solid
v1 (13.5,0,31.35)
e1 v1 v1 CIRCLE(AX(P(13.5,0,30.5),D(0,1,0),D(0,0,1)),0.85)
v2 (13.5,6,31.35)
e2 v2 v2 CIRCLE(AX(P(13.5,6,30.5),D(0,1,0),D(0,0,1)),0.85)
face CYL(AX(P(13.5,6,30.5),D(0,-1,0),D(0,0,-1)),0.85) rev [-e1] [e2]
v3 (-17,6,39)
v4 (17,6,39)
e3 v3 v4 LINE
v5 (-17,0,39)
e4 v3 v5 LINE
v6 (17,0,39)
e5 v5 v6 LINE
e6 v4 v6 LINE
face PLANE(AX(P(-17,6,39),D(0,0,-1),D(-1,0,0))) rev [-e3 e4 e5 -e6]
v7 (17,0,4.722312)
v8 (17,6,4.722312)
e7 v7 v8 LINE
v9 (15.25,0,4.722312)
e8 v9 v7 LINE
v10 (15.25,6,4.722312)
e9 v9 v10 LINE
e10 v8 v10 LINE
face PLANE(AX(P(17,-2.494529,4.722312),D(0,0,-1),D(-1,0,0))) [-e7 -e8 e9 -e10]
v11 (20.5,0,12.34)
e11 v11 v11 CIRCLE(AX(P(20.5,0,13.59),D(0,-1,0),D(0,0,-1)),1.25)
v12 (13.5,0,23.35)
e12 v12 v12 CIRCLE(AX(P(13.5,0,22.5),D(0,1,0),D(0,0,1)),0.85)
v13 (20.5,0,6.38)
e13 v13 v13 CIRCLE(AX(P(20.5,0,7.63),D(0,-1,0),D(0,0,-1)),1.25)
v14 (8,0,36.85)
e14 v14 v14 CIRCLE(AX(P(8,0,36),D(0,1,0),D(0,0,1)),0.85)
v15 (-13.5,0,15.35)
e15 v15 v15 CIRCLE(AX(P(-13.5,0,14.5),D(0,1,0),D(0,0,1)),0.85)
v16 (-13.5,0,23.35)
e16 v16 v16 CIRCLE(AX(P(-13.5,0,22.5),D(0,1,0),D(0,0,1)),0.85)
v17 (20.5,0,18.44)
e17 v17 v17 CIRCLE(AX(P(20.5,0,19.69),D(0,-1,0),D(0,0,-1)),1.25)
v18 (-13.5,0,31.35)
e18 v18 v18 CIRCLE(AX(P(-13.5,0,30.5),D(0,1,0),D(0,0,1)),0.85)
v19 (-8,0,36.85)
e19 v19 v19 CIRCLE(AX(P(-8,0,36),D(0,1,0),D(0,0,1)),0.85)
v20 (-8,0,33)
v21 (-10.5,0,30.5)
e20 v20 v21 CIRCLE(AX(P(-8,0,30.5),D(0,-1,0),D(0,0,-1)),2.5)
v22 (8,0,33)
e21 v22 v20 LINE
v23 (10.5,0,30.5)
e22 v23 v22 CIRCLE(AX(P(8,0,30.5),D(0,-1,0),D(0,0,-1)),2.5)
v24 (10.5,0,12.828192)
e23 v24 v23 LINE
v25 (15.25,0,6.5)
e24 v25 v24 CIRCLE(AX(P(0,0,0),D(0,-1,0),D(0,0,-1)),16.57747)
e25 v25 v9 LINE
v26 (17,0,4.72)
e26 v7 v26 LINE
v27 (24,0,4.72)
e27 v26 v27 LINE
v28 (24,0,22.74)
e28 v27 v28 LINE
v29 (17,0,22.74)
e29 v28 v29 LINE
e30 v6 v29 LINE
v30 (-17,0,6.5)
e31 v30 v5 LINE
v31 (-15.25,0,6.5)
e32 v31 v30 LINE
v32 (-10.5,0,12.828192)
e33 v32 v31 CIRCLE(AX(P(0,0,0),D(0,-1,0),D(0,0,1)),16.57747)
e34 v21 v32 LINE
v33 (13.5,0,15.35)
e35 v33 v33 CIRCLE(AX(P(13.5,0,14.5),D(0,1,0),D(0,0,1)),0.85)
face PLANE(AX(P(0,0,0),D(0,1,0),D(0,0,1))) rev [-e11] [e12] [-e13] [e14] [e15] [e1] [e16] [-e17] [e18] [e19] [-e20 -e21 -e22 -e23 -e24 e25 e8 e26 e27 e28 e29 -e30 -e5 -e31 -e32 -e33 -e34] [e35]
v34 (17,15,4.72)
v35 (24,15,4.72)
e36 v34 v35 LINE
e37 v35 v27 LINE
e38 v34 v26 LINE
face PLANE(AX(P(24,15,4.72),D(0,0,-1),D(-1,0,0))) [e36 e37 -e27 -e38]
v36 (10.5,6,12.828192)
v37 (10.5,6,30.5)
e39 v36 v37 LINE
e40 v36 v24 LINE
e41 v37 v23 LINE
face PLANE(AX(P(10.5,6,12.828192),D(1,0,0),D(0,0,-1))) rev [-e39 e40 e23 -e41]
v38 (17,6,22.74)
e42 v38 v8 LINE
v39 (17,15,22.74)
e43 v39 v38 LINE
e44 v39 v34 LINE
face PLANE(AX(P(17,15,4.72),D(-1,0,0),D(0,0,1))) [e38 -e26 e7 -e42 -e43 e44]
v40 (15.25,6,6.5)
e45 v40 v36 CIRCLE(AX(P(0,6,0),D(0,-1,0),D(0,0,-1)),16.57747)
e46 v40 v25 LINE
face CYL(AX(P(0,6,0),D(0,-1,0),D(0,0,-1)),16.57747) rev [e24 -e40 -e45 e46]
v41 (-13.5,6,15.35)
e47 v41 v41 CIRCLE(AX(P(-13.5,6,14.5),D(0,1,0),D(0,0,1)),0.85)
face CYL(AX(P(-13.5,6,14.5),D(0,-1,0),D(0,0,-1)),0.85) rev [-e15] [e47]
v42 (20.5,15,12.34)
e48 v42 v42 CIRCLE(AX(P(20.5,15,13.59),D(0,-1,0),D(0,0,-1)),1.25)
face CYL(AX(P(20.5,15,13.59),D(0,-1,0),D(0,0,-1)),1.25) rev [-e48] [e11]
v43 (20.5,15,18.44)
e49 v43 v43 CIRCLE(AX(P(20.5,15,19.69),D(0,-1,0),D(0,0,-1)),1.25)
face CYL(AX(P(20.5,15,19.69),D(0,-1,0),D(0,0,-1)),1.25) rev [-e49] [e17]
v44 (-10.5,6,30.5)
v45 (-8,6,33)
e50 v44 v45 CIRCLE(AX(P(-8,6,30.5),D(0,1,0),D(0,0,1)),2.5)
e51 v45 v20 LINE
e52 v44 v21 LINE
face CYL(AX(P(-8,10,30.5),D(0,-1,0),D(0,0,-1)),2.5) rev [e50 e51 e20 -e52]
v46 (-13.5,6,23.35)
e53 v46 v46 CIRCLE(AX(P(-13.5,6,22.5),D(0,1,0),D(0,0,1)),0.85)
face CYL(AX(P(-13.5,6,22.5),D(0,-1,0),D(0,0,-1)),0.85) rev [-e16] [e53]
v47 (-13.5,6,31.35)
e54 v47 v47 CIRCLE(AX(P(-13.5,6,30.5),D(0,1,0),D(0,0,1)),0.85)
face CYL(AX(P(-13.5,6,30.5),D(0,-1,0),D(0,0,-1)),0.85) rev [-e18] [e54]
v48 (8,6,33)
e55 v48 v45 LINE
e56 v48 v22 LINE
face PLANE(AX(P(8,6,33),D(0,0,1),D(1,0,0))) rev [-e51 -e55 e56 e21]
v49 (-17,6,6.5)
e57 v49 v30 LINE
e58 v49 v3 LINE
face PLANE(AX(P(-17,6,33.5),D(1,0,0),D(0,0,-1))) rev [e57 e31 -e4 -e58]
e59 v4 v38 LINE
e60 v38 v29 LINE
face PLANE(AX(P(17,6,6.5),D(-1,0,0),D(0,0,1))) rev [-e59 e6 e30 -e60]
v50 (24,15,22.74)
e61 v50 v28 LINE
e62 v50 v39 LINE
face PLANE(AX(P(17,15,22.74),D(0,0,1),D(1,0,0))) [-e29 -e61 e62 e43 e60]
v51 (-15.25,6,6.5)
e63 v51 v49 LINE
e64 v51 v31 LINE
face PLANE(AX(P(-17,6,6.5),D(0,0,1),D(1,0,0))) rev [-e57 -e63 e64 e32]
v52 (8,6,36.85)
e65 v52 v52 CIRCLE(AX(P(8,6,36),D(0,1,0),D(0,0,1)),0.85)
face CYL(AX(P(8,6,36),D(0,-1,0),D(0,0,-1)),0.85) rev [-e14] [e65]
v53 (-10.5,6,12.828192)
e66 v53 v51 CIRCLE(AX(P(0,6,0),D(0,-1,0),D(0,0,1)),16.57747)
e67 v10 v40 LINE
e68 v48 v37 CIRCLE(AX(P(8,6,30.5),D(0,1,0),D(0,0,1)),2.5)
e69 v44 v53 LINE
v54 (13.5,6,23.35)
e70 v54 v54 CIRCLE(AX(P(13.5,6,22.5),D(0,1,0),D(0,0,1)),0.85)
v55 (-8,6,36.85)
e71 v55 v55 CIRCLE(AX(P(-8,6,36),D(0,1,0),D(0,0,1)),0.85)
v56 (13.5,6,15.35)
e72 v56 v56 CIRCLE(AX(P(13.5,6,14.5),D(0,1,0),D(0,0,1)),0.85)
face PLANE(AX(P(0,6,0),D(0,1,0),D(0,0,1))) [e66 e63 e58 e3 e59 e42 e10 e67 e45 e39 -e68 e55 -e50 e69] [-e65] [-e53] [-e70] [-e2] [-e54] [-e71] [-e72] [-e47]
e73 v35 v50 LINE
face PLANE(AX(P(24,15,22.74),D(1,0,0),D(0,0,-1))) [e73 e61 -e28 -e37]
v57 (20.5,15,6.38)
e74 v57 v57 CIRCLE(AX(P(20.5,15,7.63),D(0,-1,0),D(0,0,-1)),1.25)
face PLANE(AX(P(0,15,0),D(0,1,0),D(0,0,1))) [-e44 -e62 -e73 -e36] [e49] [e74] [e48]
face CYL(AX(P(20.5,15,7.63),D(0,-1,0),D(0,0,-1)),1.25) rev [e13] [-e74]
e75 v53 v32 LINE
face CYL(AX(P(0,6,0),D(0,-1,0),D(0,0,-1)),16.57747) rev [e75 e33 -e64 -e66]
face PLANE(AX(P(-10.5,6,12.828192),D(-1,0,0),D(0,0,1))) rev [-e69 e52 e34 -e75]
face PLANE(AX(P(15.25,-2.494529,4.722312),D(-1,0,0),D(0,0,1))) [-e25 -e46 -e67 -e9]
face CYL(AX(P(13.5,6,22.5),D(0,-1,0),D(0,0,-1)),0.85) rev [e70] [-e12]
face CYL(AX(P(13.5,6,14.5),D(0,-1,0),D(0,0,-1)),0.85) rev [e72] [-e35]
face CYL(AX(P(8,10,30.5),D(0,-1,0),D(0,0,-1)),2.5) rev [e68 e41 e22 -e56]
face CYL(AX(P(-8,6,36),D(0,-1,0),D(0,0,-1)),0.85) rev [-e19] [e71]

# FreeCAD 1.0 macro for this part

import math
import FreeCAD as App
import Part
import Sketcher
from FreeCAD import Vector
Q = App.Units.Quantity

doc = App.newDocument("Part")
body = doc.addObject("PartDesign::Body", "Body")

# Sketch on XZ plane
sketch1 = body.newObject("Sketcher::SketchObject", "Sketch")
sketch1.AttachmentSupport = (doc.getObject("XZ_Plane"), [""])
sketch1.MapMode = "FlatFace"
sketch1.addGeometry([
    Part.LineSegment(Vector(-17, 6.5, 0), Vector(-17, 39, 0)),  # 0
    Part.LineSegment(Vector(-17, 39, 0), Vector(17, 39, 0)),  # 1
    Part.LineSegment(Vector(17, 39, 0), Vector(17, 6.5, 0)),  # 2
    Part.LineSegment(Vector(17, 6.5, 0), Vector(15.25, 6.5, 0)),  # 3
    Part.ArcOfCircle(Part.Circle(Vector(0, 0, 0), Vector(0, 0, 1), 16.57747), math.radians(23.085134), math.radians(50.69934)),  # 4
    Part.LineSegment(Vector(10.5, 12.828192, 0), Vector(10.5, 30.5, 0)),  # 5
    Part.LineSegment(Vector(10.5, 30.5, 0), Vector(8, 30.5, 0)),  # 6
    Part.LineSegment(Vector(8, 30.5, 0), Vector(8, 33, 0)),  # 7
    Part.LineSegment(Vector(8, 33, 0), Vector(-8, 33, 0)),  # 8
    Part.LineSegment(Vector(-8, 33, 0), Vector(-8, 30.5, 0)),  # 9
    Part.LineSegment(Vector(-8, 30.5, 0), Vector(-10.5, 30.5, 0)),  # 10
    Part.LineSegment(Vector(-10.5, 30.5, 0), Vector(-10.5, 12.828192, 0)),  # 11
    Part.ArcOfCircle(Part.Circle(Vector(0, 0, 0), Vector(0, 0, 1), 16.57747), math.radians(129.30066), math.radians(156.914866)),  # 12
    Part.LineSegment(Vector(-15.25, 6.5, 0), Vector(-17, 6.5, 0)),  # 13
    Part.Circle(Vector(-8, 36, 0), Vector(0, 0, 1), 0.85),  # 14
    Part.Circle(Vector(-13.5, 30.5, 0), Vector(0, 0, 1), 0.85),  # 15
    Part.Circle(Vector(8, 36, 0), Vector(0, 0, 1), 0.85),  # 16
    Part.Circle(Vector(13.5, 30.5, 0), Vector(0, 0, 1), 0.85),  # 17
    Part.Circle(Vector(-13.5, 22.5, 0), Vector(0, 0, 1), 0.85),  # 18
    Part.Circle(Vector(-13.5, 14.5, 0), Vector(0, 0, 1), 0.85),  # 19
    Part.Circle(Vector(13.5, 22.5, 0), Vector(0, 0, 1), 0.85),  # 20
    Part.Circle(Vector(13.5, 14.5, 0), Vector(0, 0, 1), 0.85),  # 21
], False)
sketch1.addConstraint([
    Sketcher.Constraint("Coincident", 0, 2, 1, 1),
    Sketcher.Constraint("Coincident", 1, 2, 2, 1),
    Sketcher.Constraint("Coincident", 2, 2, 3, 1),
    Sketcher.Constraint("Coincident", 3, 2, 4, 1),
    Sketcher.Constraint("Coincident", 4, 2, 5, 1),
    Sketcher.Constraint("Coincident", 5, 2, 6, 1),
    Sketcher.Constraint("Coincident", 6, 2, 7, 1),
    Sketcher.Constraint("Coincident", 7, 2, 8, 1),
    Sketcher.Constraint("Coincident", 8, 2, 9, 1),
    Sketcher.Constraint("Coincident", 9, 2, 10, 1),
    Sketcher.Constraint("Coincident", 10, 2, 11, 1),
    Sketcher.Constraint("Coincident", 11, 2, 12, 1),
    Sketcher.Constraint("Coincident", 12, 2, 13, 1),
    Sketcher.Constraint("Coincident", 13, 2, 0, 1),
    Sketcher.Constraint("Vertical", 0),
    Sketcher.Constraint("Horizontal", 1),
    Sketcher.Constraint("Vertical", 2),
    Sketcher.Constraint("Horizontal", 3),
    Sketcher.Constraint("Vertical", 5),
    Sketcher.Constraint("Horizontal", 6),
    Sketcher.Constraint("Vertical", 7),
    Sketcher.Constraint("Horizontal", 8),
    Sketcher.Constraint("Vertical", 9),
    Sketcher.Constraint("Horizontal", 10),
    Sketcher.Constraint("Vertical", 11),
    Sketcher.Constraint("Horizontal", 13),
    Sketcher.Constraint("Coincident", 4, 3, -1, 1),
    Sketcher.Constraint("Coincident", 12, 3, -1, 1),
    Sketcher.Constraint("Equal", 4, 12),
    Sketcher.Constraint("Equal", 14, 15),
    Sketcher.Constraint("Equal", 15, 16),
    Sketcher.Constraint("Equal", 16, 17),
    Sketcher.Constraint("Equal", 17, 18),
    Sketcher.Constraint("Equal", 18, 19),
    Sketcher.Constraint("Equal", 19, 20),
    Sketcher.Constraint("Equal", 20, 21),
    Sketcher.Constraint("Symmetric", 14, 3, 16, 3, -2),
    Sketcher.Constraint("Symmetric", 15, 3, 17, 3, -2),
    Sketcher.Constraint("Symmetric", 18, 3, 20, 3, -2),
    Sketcher.Constraint("Symmetric", 19, 3, 21, 3, -2),
    Sketcher.Constraint("Symmetric", 6, 2, 9, 2, -2),
    Sketcher.Constraint("Symmetric", 2, 2, 13, 2, -2),
    Sketcher.Constraint("Horizontal", 17, 3, 5, 2),
    Sketcher.Constraint("Horizontal", 4, 2, 11, 2),
    Sketcher.Constraint("Vertical", 15, 3, 18, 3),
    Sketcher.Constraint("Vertical", 18, 3, 19, 3),
    Sketcher.Constraint("Vertical", 16, 3, 6, 2),
    Sketcher.Constraint("Equal", 10, 7),
    Sketcher.Constraint("Diameter", 14, Q("1.7 mm")),
    Sketcher.Constraint("DistanceX", 1, 1, 1, 2, Q("34 mm")),
    Sketcher.Constraint("DistanceX", 8, 2, 8, 1, Q("16 mm")),
    Sketcher.Constraint("DistanceX", 6, 2, 6, 1, Q("2.5 mm")),
    Sketcher.Constraint("DistanceY", 0, 1, 0, 2, Q("32.5 mm")),
    Sketcher.Constraint("DistanceY", -1, 1, 14, 3, Q("36 mm")),
    Sketcher.Constraint("DistanceY", -1, 1, 0, 2, Q("39 mm")),
    Sketcher.Constraint("DistanceY", -1, 1, 7, 2, Q("33 mm")),
    Sketcher.Constraint("DistanceX", 15, 3, 17, 3, Q("27 mm")),
    Sketcher.Constraint("DistanceY", 18, 3, 15, 3, Q("8 mm")),
    Sketcher.Constraint("DistanceY", 19, 3, 18, 3, Q("8 mm")),
    Sketcher.Constraint("DistanceX", 3, 2, 3, 1, Q("1.75 mm")),
])
pad1 = body.newObject("PartDesign::Pad", "Pad")
pad1.Profile = sketch1
pad1.Length = 6
pad1.Reversed = True

# Sketch on XZ plane
sketch2 = body.newObject("Sketcher::SketchObject", "Sketch001")
sketch2.AttachmentSupport = (doc.getObject("XZ_Plane"), [""])
sketch2.MapMode = "FlatFace"
sketch2.addGeometry([
    Part.LineSegment(Vector(24, 22.74, 0), Vector(17, 22.74, 0)),
    Part.LineSegment(Vector(17, 22.74, 0), Vector(17, 4.72, 0)),
    Part.LineSegment(Vector(17, 4.72, 0), Vector(24, 4.72, 0)),
    Part.LineSegment(Vector(24, 4.72, 0), Vector(24, 22.74, 0)),
], False)
sketch2.addConstraint([
    Sketcher.Constraint("Coincident", 0, 2, 1, 1),
    Sketcher.Constraint("Coincident", 1, 2, 2, 1),
    Sketcher.Constraint("Coincident", 2, 2, 3, 1),
    Sketcher.Constraint("Coincident", 3, 2, 0, 1),
    Sketcher.Constraint("Horizontal", 0),
    Sketcher.Constraint("Vertical", 1),
    Sketcher.Constraint("Horizontal", 2),
    Sketcher.Constraint("Vertical", 3),
    Sketcher.Constraint("DistanceX", 0, 2, 0, 1, Q("7 mm")),
    Sketcher.Constraint("DistanceX", -1, 1, 0, 2, Q("17 mm")),
    Sketcher.Constraint("DistanceY", 1, 2, 1, 1, Q("18.02 mm")),
    Sketcher.Constraint("DistanceY", -1, 1, 0, 2, Q("22.74 mm")),
])
pad2 = body.newObject("PartDesign::Pad", "Pad001")
pad2.Profile = sketch2
pad2.Length = 15
pad2.Reversed = True

# Sketch on XZ plane
sketch3 = body.newObject("Sketcher::SketchObject", "Sketch002")
sketch3.AttachmentSupport = (doc.getObject("XZ_Plane"), [""])
sketch3.MapMode = "FlatFace"
sketch3.addGeometry([
    Part.Circle(Vector(20.5, 7.63, 0), Vector(0, 0, 1), 1.25),
    Part.Circle(Vector(20.5, 13.59, 0), Vector(0, 0, 1), 1.25),
    Part.Circle(Vector(20.5, 19.69, 0), Vector(0, 0, 1), 1.25),
], False)
sketch3.addConstraint([
    Sketcher.Constraint("Equal", 0, 1),
    Sketcher.Constraint("Equal", 1, 2),
    Sketcher.Constraint("Vertical", 0, 3, 1, 3),
    Sketcher.Constraint("Vertical", 1, 3, 2, 3),
    Sketcher.Constraint("Diameter", 0, Q("2.5 mm")),
    Sketcher.Constraint("DistanceX", -1, 1, 0, 3, Q("20.5 mm")),
    Sketcher.Constraint("DistanceY", 1, 3, 2, 3, Q("6.1 mm")),
    Sketcher.Constraint("DistanceY", -1, 1, 0, 3, Q("7.63 mm")),
    Sketcher.Constraint("DistanceY", -1, 1, 1, 3, Q("13.59 mm")),
])
pocket1 = body.newObject("PartDesign::Pocket", "Pocket")
pocket1.Profile = sketch3
pocket1.Type = "ThroughAll"

# Sketch on XZ plane
sketch4 = body.newObject("Sketcher::SketchObject", "Sketch003")
sketch4.AttachmentSupport = (doc.getObject("XZ_Plane"), [""])
sketch4.MapMode = "FlatFace"
sketch4.addGeometry([
    Part.LineSegment(Vector(8, 33, 0), Vector(-8, 33, 0)),
    Part.ArcOfCircle(Part.Circle(Vector(-8, 30.5, 0), Vector(0, 0, 1), 2.5), math.radians(90), math.radians(180)),
    Part.LineSegment(Vector(-10.5, 30.5, 0), Vector(10.5, 30.5, 0)),
    Part.ArcOfCircle(Part.Circle(Vector(8, 30.5, 0), Vector(0, 0, 1), 2.5), math.radians(0), math.radians(90)),
], False)
sketch4.addConstraint([
    Sketcher.Constraint("Tangent", 0, 2, 1, 1),
    Sketcher.Constraint("Coincident", 1, 2, 2, 1),
    Sketcher.Constraint("Coincident", 2, 2, 3, 1),
    Sketcher.Constraint("Tangent", 3, 2, 0, 1),
    Sketcher.Constraint("Horizontal", 0),
    Sketcher.Constraint("Horizontal", 2),
    Sketcher.Constraint("Equal", 1, 3),
    Sketcher.Constraint("Horizontal", 3, 3, 1, 2),
    Sketcher.Constraint("Radius", 1, Q("2.5 mm")),
    Sketcher.Constraint("DistanceX", 0, 2, 0, 1, Q("16 mm")),
    Sketcher.Constraint("DistanceX", 1, 3, -1, 1, Q("8 mm")),
    Sketcher.Constraint("DistanceY", -1, 1, 0, 2, Q("33 mm")),
])
pocket2 = body.newObject("PartDesign::Pocket", "Pocket001")
pocket2.Profile = sketch4
pocket2.Length = 10

# Sketch on XZ plane
sketch5 = body.newObject("Sketcher::SketchObject", "Sketch004")
sketch5.AttachmentSupport = (doc.getObject("XZ_Plane"), [""])
sketch5.MapMode = "FlatFace"
sketch5.AttachmentOffset = App.Placement(Vector(0, 0, -6), App.Rotation())
sketch5.addGeometry([
    Part.LineSegment(Vector(15.25, 4.722312, 0), Vector(15.25, 6.5, 0)),
    Part.LineSegment(Vector(15.25, 6.5, 0), Vector(17, 6.5, 0)),
    Part.LineSegment(Vector(17, 6.5, 0), Vector(17, 4.722312, 0)),
    Part.LineSegment(Vector(17, 4.722312, 0), Vector(15.25, 4.722312, 0)),
], False)
sketch5.addConstraint([
    Sketcher.Constraint("Coincident", 0, 2, 1, 1),
    Sketcher.Constraint("Coincident", 1, 2, 2, 1),
    Sketcher.Constraint("Coincident", 2, 2, 3, 1),
    Sketcher.Constraint("Coincident", 3, 2, 0, 1),
    Sketcher.Constraint("Vertical", 0),
    Sketcher.Constraint("Horizontal", 1),
    Sketcher.Constraint("Vertical", 2),
    Sketcher.Constraint("Horizontal", 3),
    Sketcher.Constraint("DistanceX", -1, 1, 1, 2, Q("17 mm")),
    Sketcher.Constraint("DistanceX", 1, 1, 1, 2, Q("1.75 mm")),
    Sketcher.Constraint("DistanceY", -1, 1, 0, 2, Q("6.5 mm")),
    Sketcher.Constraint("DistanceY", 0, 1, 0, 2, Q("1.777688 mm")),
])
pad3 = body.newObject("PartDesign::Pad", "Pad002")
pad3.Profile = sketch5
pad3.Length = 6

doc.recompute()
